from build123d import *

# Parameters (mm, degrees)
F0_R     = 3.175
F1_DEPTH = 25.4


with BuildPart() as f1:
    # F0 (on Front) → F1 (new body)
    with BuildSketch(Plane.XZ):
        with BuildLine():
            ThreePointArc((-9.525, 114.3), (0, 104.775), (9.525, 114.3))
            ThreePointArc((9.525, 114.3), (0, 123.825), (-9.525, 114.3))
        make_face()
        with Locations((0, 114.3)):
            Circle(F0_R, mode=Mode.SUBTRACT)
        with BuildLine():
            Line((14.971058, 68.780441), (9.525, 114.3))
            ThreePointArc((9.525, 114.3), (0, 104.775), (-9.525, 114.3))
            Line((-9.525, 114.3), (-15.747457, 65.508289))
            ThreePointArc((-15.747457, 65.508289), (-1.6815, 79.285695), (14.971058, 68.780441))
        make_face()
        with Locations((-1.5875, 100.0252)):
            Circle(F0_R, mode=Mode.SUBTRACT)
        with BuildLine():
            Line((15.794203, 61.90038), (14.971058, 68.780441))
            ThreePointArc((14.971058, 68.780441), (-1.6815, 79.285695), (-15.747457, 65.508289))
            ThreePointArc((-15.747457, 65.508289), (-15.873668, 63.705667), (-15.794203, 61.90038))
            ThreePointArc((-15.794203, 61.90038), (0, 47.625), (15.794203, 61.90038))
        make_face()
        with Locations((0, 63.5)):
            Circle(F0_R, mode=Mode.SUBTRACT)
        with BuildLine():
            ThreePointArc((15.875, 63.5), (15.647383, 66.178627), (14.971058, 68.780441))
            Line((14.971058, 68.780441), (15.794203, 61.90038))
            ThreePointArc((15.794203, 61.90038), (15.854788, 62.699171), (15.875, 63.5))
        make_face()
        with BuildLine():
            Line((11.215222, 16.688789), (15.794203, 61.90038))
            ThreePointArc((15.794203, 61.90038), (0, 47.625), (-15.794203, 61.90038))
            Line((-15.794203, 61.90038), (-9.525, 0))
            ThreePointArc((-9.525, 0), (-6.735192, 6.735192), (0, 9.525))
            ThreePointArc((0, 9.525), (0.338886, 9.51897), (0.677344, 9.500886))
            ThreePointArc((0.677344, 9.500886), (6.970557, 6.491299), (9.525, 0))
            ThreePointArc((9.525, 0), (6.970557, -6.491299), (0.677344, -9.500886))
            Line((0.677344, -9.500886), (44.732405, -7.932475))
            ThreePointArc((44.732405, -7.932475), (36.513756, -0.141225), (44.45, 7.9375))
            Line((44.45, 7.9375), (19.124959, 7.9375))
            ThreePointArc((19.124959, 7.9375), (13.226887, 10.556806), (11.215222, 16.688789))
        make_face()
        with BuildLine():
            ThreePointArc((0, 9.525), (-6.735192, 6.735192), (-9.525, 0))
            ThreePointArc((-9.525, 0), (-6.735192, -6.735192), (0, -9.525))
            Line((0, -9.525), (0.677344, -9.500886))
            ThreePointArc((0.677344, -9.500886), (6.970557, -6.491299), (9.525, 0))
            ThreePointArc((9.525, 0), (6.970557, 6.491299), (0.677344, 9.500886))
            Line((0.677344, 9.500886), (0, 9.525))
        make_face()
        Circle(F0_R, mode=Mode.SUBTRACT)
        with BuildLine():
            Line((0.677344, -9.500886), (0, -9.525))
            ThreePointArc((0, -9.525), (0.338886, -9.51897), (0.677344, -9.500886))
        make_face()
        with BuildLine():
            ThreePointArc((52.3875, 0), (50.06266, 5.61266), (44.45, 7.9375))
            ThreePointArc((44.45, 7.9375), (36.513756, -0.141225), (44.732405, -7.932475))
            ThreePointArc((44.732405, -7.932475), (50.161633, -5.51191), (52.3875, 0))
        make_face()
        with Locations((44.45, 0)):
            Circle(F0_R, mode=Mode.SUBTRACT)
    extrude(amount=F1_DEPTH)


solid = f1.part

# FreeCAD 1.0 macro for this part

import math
import FreeCAD as App
import Part
import Sketcher
Q = App.Units.Quantity

doc = App.newDocument("Part")
body = doc.addObject("PartDesign::Body", "Body")

sketch1 = doc.addObject("Sketcher::SketchObject", "Sketch")
body.addObject(sketch1)
sketch1.AttachmentSupport = (doc.XZ_Plane, [""])
sketch1.MapMode = "FlatFace"
sketch1.addGeometry([
    Part.ArcOfCircle(Part.Circle(App.Vector(0, 114.3, 0), App.Vector(0, 0, 1), 9.525), math.radians(0), math.radians(180)),
    Part.LineSegment(App.Vector(-9.525, 114.3, 0), App.Vector(-15.747457, 65.508289, 0)),
    Part.ArcOfCircle(Part.Circle(App.Vector(-0.000025, 63.5, 0), App.Vector(0, 0, 1), 15.874976), math.radians(172.732231), math.radians(185.783143)),
    Part.LineSegment(App.Vector(-15.794203, 61.90038, 0), App.Vector(-9.525, 0, 0)),
    Part.ArcOfCircle(Part.Circle(App.Vector(0, 0, 0), App.Vector(0, 0, 1), 9.525), math.radians(-179.999998), math.radians(-90.000002)),
    Part.ArcOfCircle(Part.Circle(App.Vector(0.000022, -0.000517, 0), App.Vector(0, 0, 1), 9.524483), math.radians(-90.000132), math.radians(-85.922038)),
    Part.LineSegment(App.Vector(0.677344, -9.500886, 0), App.Vector(44.732405, -7.932475, 0)),
    Part.ArcOfCircle(Part.Circle(App.Vector(44.449999, 0.000001, 0), App.Vector(0, 0, 1), 7.937501), math.radians(-87.961059), math.radians(-0.000005)),
    Part.ArcOfCircle(Part.Circle(App.Vector(44.45, 0, 0), App.Vector(0, 0, 1), 7.9375), math.radians(0.000002), math.radians(89.999998)),
    Part.LineSegment(App.Vector(44.45, 7.9375, 0), App.Vector(19.124959, 7.9375, 0)),
    Part.ArcOfCircle(Part.Circle(App.Vector(19.124959, 15.8877, 0), App.Vector(0, 0, 1), 7.9502), math.radians(174.216867), math.radians(270.000003)),
    Part.LineSegment(App.Vector(11.215222, 16.688789, 0), App.Vector(15.794203, 61.90038, 0)),
    Part.ArcOfCircle(Part.Circle(App.Vector(0.000021, 63.499997, 0), App.Vector(0, 0, 1), 15.874979), math.radians(-5.783131), math.radians(0.000012)),
    Part.ArcOfCircle(Part.Circle(App.Vector(0.000016, 63.500004, 0), App.Vector(0, 0, 1), 15.874984), math.radians(-0.000013), math.radians(19.428259)),
    Part.LineSegment(App.Vector(14.971058, 68.780441, 0), App.Vector(9.525, 114.3, 0)),
    Part.Circle(App.Vector(0, 0, 0), App.Vector(0, 0, 1), 3.175),
    Part.ArcOfCircle(Part.Circle(App.Vector(0.000022, 0.000517, 0), App.Vector(0, 0, 1), 9.524483), math.radians(85.922038), math.radians(90.000132)),
    Part.LineSegment(App.Vector(0.677344, 9.500886, 0), App.Vector(0, 9.525, 0)),
    Part.Circle(App.Vector(44.45, 0, 0), App.Vector(0, 0, 1), 3.175),
    Part.Circle(App.Vector(0, 63.5, 0), App.Vector(0, 0, 1), 3.175),
    Part.Circle(App.Vector(-1.5875, 100.0252, 0), App.Vector(0, 0, 1), 3.175),
    Part.Circle(App.Vector(0, 114.3, 0), App.Vector(0, 0, 1), 3.175),
], False)
sketch1.addConstraint([
    Sketcher.Constraint("Coincident", 0, 2, 1, 1),
    Sketcher.Constraint("Tangent", 1, 2, 2, 1),
    Sketcher.Constraint("Tangent", 2, 2, 3, 1),
    Sketcher.Constraint("Coincident", 3, 2, 4, 1),
    Sketcher.Constraint("Coincident", 4, 2, 5, 1),
    Sketcher.Constraint("Coincident", 5, 2, 6, 1),
    Sketcher.Constraint("Tangent", 6, 2, 7, 1),
    Sketcher.Constraint("Tangent", 7, 2, 8, 1),
    Sketcher.Constraint("Tangent", 8, 2, 9, 1),
    Sketcher.Constraint("Tangent", 9, 2, 10, 2),
    Sketcher.Constraint("Tangent", 10, 1, 11, 1),
    Sketcher.Constraint("Tangent", 11, 2, 12, 1),
    Sketcher.Constraint("Tangent", 12, 2, 13, 1),
    Sketcher.Constraint("Coincident", 13, 2, 14, 1),
    Sketcher.Constraint("Coincident", 14, 2, 0, 1),
    Sketcher.Constraint("Coincident", 16, 1, 17, 1),
    Sketcher.Constraint("Coincident", 17, 2, 16, 2),
    Sketcher.Constraint("Horizontal", 9),
    Sketcher.Constraint("Coincident", 4, 3, -1, 1),
    Sketcher.Constraint("Coincident", 15, 3, -1, 1),
    Sketcher.Constraint("Coincident", 18, 3, 7, 3),
    Sketcher.Constraint("Coincident", 21, 3, 0, 3),
    Sketcher.Constraint("Equal", 0, 4),
    Sketcher.Constraint("Equal", 7, 8),
    Sketcher.Constraint("Equal", 5, 16),
    Sketcher.Constraint("Equal", 15, 18),
    Sketcher.Constraint("Equal", 18, 19),
    Sketcher.Constraint("Equal", 19, 20),
    Sketcher.Constraint("Equal", 20, 21),
    Sketcher.Constraint("Symmetric", 4, 2, 17, 2, -1, 1),
    Sketcher.Constraint("Symmetric", 2, 3, 12, 3, -2),
    Sketcher.Constraint("Symmetric", 2, 2, 11, 2, -2),
    Sketcher.Constraint("Symmetric", 0, 2, 14, 2, -2),
    Sketcher.Constraint("Symmetric", 5, 2, 16, 1, -1),
    Sketcher.Constraint("PointOnObject", 7, 3, -1),
    Sketcher.Constraint("PointOnObject", 19, 3, -2),
    Sketcher.Constraint("PointOnObject", 3, 2, -1),
    Sketcher.Constraint("PointOnObject", 4, 2, -2),
    Sketcher.Constraint("PointOnObject", 7, 2, -1),
    Sketcher.Constraint("Horizontal", 2, 3, 19, 3),
    Sketcher.Constraint("Horizontal", 21, 3, 0, 2),
    Sketcher.Constraint("Horizontal", 19, 3, 12, 2),
    Sketcher.Constraint("Vertical", 5, 3, 12, 3),
    Sketcher.Constraint("Diameter", 15, Q("0.25 in")),
    Sketcher.Constraint("Radius", 0, Q("0.375 in")),
    Sketcher.Constraint("Radius", 7, Q("0.3125 in")),
    Sketcher.Constraint("Radius", 10, Q("0.313 in")),
    Sketcher.Constraint("DistanceY", 2, 3, 0, 3, Q("2 in")),
    Sketcher.Constraint("DistanceY", -1, 1, 0, 3, Q("4.5 in")),
    Sketcher.Constraint("DistanceX", -1, 1, 7, 3, Q("1.75 in")),
    Sketcher.Constraint("DistanceX", 20, 3, -1, 1, Q("0.0625 in")),
    Sketcher.Constraint("DistanceY", -1, 1, 20, 3, Q("3.938 in")),
    Sketcher.Constraint("DistanceX", -1, 1, 12, 2, Q("0.625 in")),
    Sketcher.Constraint("Radius", 12, 15.874979),
    Sketcher.Constraint("Radius", 5, 9.524483),
    Sketcher.Constraint("Radius", 13, 15.874984),
    Sketcher.Constraint("Distance", 6, 44.082971),
    Sketcher.Constraint("Distance", 14, 45.84419),
])
pad1 = doc.addObject("PartDesign::Pad", "Pad")
body.addObject(pad1)
pad1.Profile = sketch1
pad1.Length = Q("1 in")

doc.recompute()
